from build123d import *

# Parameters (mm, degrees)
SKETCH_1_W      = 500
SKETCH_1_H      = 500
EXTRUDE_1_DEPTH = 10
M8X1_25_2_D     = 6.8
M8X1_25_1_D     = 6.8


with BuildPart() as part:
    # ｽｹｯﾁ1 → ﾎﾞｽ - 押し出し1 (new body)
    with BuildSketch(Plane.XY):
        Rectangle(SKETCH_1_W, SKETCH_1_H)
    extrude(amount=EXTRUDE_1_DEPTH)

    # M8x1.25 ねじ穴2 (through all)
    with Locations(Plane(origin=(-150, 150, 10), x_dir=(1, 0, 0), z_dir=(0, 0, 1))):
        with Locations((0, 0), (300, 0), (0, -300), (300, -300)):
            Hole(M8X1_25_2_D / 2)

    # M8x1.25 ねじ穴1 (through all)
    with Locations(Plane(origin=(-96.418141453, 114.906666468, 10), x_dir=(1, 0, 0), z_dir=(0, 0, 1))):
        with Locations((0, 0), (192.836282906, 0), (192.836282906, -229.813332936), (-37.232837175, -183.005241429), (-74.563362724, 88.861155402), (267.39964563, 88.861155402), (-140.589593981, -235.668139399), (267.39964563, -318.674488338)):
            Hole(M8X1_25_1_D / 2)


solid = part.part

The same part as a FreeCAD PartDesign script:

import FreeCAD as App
import Part
import Sketcher

V = App.Vector
Q = App.Units.Quantity


def add_polygon(sketch, points):
    """Adds a closed chain of lines whose ends are joined by coincident constraints."""
    first, n = sketch.GeometryCount, len(points)
    for a, b in zip(points, points[1:] + points[:1]):
        sketch.addGeometry(Part.LineSegment(App.Vector(*a, 0), App.Vector(*b, 0)), False)
    for i in range(n):
        sketch.addConstraint(Sketcher.Constraint("Coincident", first + i, 2, first + (i + 1) % n, 1))

doc = App.newDocument("Part")
body = doc.addObject("PartDesign::Body", "Body")

# Sketch on XY plane
sketch1 = doc.addObject("Sketcher::SketchObject", "Sketch")
body.addObject(sketch1)
sketch1.AttachmentSupport = (doc.XY_Plane, [""])
sketch1.MapMode = "FlatFace"
add_polygon(sketch1, [(-250, 250), (-250, -250), (250, -250), (250, 250)])  # lines 0-3
sketch1.addConstraint([
    Sketcher.Constraint("Vertical", 0),
    Sketcher.Constraint("Horizontal", 1),
    Sketcher.Constraint("Vertical", 2),
    Sketcher.Constraint("Horizontal", 3),
    Sketcher.Constraint("Symmetric", 0, 2, 2, 2, -1, 1),
    Sketcher.Constraint("Equal", 3, 0),
    Sketcher.Constraint("DistanceX", 1, 1, 1, 2, Q("500 mm")),
])
pad1 = doc.addObject("PartDesign::Pad", "Pad")
body.addObject(pad1)
pad1.Profile = sketch1
pad1.Length = 10

# Sketch on XY plane
sketch2 = doc.addObject("Sketcher::SketchObject", "Sketch001")
body.addObject(sketch2)
sketch2.AttachmentSupport = (doc.XY_Plane, [""])
sketch2.MapMode = "FlatFace"
sketch2.AttachmentOffset = App.Placement(V(0, 0, 10), App.Rotation())
sketch2.addGeometry([
    Part.Circle(V(-150, 150, 0), V(0, 0, 1), 3.4),
    Part.Circle(V(150, 150, 0), V(0, 0, 1), 3.4),
    Part.Circle(V(-150, -150, 0), V(0, 0, 1), 3.4),
    Part.Circle(V(150, -150, 0), V(0, 0, 1), 3.4),
], False)
sketch2.addConstraint([
    Sketcher.Constraint("Equal", 0, 1),
    Sketcher.Constraint("Equal", 1, 2),
    Sketcher.Constraint("Equal", 2, 3),
    Sketcher.Constraint("Symmetric", 1, 3, 2, 3, -1, 1),
    Sketcher.Constraint("Symmetric", 0, 3, 3, 3, -1, 1),
    Sketcher.Constraint("Symmetric", 0, 3, 1, 3, -2),
    Sketcher.Constraint("Diameter", 0, Q("6.8 mm")),
    Sketcher.Constraint("DistanceX", 0, 3, -1, 1, Q("150 mm")),
    Sketcher.Constraint("DistanceY", -1, 1, 0, 3, Q("150 mm")),
])
doc.recompute()
hole = doc.addObject("PartDesign::Hole", "Hole")
body.addObject(hole)
hole.Profile = sketch2
hole.ThreadType = "None"
hole.Diameter = 6.8
hole.DepthType = "ThroughAll"

# Sketch on XY plane
sketch3 = doc.addObject("Sketcher::SketchObject", "Sketch002")
body.addObject(sketch3)
sketch3.AttachmentSupport = (doc.XY_Plane, [""])
sketch3.MapMode = "FlatFace"
sketch3.AttachmentOffset = App.Placement(V(0, 0, 10), App.Rotation())
sketch3.addGeometry([
    Part.Circle(V(-96.4, 114.9, 0), V(0, 0, 1), 3.4),  # 0
    Part.Circle(V(96.4, 114.9, 0), V(0, 0, 1), 3.4),  # 1
    Part.Circle(V(96.4, -114.9, 0), V(0, 0, 1), 3.4),  # 2
    Part.Circle(V(-133.7, -68.1, 0), V(0, 0, 1), 3.4),  # 3
    Part.Circle(V(-171, 203.8, 0), V(0, 0, 1), 3.4),  # 4
    Part.Circle(V(171, 203.8, 0), V(0, 0, 1), 3.4),  # 5
    Part.Circle(V(-237, -120.8, 0), V(0, 0, 1), 3.4),  # 6
    Part.Circle(V(171, -203.8, 0), V(0, 0, 1), 3.4),  # 7
], False)
sketch3.addConstraint([
    Sketcher.Constraint("Equal", 0, 1),
    Sketcher.Constraint("Equal", 1, 2),
    Sketcher.Constraint("Equal", 2, 3),
    Sketcher.Constraint("Equal", 3, 4),
    Sketcher.Constraint("Equal", 4, 5),
    Sketcher.Constraint("Equal", 5, 6),
    Sketcher.Constraint("Equal", 6, 7),
    Sketcher.Constraint("Symmetric", 0, 3, 2, 3, -1, 1),
    Sketcher.Constraint("Symmetric", 4, 3, 7, 3, -1, 1),
    Sketcher.Constraint("Symmetric", 0, 3, 1, 3, -2),
    Sketcher.Constraint("Symmetric", 4, 3, 5, 3, -2),
    Sketcher.Constraint("Diameter", 0, Q("6.8 mm")),
    Sketcher.Constraint("DistanceX", 0, 3, -1, 1, Q("96.418141 mm")),
    Sketcher.Constraint("DistanceX", 3, 3, -1, 1, Q("133.650979 mm")),
    Sketcher.Constraint("DistanceY", -1, 1, 4, 3, Q("203.767822 mm")),
    Sketcher.Constraint("DistanceY", 3, 3, 0, 3, Q("183.005241 mm")),
    Sketcher.Constraint("DistanceY", 2, 3, 3, 3, Q("46.808092 mm")),
    Sketcher.Constraint("DistanceX", 4, 3, 5, 3, Q("341.963008 mm")),
    Sketcher.Constraint("DistanceY", 6, 3, 0, 3, Q("235.668139 mm")),
    Sketcher.Constraint("DistanceX", 6, 3, 4, 3, Q("66.026231 mm")),
])
doc.recompute()
hole2 = doc.addObject("PartDesign::Hole", "Hole001")
body.addObject(hole2)
hole2.Profile = sketch3
hole2.ThreadType = "None"
hole2.Diameter = 6.8
hole2.DepthType = "ThroughAll"

doc.recompute()
